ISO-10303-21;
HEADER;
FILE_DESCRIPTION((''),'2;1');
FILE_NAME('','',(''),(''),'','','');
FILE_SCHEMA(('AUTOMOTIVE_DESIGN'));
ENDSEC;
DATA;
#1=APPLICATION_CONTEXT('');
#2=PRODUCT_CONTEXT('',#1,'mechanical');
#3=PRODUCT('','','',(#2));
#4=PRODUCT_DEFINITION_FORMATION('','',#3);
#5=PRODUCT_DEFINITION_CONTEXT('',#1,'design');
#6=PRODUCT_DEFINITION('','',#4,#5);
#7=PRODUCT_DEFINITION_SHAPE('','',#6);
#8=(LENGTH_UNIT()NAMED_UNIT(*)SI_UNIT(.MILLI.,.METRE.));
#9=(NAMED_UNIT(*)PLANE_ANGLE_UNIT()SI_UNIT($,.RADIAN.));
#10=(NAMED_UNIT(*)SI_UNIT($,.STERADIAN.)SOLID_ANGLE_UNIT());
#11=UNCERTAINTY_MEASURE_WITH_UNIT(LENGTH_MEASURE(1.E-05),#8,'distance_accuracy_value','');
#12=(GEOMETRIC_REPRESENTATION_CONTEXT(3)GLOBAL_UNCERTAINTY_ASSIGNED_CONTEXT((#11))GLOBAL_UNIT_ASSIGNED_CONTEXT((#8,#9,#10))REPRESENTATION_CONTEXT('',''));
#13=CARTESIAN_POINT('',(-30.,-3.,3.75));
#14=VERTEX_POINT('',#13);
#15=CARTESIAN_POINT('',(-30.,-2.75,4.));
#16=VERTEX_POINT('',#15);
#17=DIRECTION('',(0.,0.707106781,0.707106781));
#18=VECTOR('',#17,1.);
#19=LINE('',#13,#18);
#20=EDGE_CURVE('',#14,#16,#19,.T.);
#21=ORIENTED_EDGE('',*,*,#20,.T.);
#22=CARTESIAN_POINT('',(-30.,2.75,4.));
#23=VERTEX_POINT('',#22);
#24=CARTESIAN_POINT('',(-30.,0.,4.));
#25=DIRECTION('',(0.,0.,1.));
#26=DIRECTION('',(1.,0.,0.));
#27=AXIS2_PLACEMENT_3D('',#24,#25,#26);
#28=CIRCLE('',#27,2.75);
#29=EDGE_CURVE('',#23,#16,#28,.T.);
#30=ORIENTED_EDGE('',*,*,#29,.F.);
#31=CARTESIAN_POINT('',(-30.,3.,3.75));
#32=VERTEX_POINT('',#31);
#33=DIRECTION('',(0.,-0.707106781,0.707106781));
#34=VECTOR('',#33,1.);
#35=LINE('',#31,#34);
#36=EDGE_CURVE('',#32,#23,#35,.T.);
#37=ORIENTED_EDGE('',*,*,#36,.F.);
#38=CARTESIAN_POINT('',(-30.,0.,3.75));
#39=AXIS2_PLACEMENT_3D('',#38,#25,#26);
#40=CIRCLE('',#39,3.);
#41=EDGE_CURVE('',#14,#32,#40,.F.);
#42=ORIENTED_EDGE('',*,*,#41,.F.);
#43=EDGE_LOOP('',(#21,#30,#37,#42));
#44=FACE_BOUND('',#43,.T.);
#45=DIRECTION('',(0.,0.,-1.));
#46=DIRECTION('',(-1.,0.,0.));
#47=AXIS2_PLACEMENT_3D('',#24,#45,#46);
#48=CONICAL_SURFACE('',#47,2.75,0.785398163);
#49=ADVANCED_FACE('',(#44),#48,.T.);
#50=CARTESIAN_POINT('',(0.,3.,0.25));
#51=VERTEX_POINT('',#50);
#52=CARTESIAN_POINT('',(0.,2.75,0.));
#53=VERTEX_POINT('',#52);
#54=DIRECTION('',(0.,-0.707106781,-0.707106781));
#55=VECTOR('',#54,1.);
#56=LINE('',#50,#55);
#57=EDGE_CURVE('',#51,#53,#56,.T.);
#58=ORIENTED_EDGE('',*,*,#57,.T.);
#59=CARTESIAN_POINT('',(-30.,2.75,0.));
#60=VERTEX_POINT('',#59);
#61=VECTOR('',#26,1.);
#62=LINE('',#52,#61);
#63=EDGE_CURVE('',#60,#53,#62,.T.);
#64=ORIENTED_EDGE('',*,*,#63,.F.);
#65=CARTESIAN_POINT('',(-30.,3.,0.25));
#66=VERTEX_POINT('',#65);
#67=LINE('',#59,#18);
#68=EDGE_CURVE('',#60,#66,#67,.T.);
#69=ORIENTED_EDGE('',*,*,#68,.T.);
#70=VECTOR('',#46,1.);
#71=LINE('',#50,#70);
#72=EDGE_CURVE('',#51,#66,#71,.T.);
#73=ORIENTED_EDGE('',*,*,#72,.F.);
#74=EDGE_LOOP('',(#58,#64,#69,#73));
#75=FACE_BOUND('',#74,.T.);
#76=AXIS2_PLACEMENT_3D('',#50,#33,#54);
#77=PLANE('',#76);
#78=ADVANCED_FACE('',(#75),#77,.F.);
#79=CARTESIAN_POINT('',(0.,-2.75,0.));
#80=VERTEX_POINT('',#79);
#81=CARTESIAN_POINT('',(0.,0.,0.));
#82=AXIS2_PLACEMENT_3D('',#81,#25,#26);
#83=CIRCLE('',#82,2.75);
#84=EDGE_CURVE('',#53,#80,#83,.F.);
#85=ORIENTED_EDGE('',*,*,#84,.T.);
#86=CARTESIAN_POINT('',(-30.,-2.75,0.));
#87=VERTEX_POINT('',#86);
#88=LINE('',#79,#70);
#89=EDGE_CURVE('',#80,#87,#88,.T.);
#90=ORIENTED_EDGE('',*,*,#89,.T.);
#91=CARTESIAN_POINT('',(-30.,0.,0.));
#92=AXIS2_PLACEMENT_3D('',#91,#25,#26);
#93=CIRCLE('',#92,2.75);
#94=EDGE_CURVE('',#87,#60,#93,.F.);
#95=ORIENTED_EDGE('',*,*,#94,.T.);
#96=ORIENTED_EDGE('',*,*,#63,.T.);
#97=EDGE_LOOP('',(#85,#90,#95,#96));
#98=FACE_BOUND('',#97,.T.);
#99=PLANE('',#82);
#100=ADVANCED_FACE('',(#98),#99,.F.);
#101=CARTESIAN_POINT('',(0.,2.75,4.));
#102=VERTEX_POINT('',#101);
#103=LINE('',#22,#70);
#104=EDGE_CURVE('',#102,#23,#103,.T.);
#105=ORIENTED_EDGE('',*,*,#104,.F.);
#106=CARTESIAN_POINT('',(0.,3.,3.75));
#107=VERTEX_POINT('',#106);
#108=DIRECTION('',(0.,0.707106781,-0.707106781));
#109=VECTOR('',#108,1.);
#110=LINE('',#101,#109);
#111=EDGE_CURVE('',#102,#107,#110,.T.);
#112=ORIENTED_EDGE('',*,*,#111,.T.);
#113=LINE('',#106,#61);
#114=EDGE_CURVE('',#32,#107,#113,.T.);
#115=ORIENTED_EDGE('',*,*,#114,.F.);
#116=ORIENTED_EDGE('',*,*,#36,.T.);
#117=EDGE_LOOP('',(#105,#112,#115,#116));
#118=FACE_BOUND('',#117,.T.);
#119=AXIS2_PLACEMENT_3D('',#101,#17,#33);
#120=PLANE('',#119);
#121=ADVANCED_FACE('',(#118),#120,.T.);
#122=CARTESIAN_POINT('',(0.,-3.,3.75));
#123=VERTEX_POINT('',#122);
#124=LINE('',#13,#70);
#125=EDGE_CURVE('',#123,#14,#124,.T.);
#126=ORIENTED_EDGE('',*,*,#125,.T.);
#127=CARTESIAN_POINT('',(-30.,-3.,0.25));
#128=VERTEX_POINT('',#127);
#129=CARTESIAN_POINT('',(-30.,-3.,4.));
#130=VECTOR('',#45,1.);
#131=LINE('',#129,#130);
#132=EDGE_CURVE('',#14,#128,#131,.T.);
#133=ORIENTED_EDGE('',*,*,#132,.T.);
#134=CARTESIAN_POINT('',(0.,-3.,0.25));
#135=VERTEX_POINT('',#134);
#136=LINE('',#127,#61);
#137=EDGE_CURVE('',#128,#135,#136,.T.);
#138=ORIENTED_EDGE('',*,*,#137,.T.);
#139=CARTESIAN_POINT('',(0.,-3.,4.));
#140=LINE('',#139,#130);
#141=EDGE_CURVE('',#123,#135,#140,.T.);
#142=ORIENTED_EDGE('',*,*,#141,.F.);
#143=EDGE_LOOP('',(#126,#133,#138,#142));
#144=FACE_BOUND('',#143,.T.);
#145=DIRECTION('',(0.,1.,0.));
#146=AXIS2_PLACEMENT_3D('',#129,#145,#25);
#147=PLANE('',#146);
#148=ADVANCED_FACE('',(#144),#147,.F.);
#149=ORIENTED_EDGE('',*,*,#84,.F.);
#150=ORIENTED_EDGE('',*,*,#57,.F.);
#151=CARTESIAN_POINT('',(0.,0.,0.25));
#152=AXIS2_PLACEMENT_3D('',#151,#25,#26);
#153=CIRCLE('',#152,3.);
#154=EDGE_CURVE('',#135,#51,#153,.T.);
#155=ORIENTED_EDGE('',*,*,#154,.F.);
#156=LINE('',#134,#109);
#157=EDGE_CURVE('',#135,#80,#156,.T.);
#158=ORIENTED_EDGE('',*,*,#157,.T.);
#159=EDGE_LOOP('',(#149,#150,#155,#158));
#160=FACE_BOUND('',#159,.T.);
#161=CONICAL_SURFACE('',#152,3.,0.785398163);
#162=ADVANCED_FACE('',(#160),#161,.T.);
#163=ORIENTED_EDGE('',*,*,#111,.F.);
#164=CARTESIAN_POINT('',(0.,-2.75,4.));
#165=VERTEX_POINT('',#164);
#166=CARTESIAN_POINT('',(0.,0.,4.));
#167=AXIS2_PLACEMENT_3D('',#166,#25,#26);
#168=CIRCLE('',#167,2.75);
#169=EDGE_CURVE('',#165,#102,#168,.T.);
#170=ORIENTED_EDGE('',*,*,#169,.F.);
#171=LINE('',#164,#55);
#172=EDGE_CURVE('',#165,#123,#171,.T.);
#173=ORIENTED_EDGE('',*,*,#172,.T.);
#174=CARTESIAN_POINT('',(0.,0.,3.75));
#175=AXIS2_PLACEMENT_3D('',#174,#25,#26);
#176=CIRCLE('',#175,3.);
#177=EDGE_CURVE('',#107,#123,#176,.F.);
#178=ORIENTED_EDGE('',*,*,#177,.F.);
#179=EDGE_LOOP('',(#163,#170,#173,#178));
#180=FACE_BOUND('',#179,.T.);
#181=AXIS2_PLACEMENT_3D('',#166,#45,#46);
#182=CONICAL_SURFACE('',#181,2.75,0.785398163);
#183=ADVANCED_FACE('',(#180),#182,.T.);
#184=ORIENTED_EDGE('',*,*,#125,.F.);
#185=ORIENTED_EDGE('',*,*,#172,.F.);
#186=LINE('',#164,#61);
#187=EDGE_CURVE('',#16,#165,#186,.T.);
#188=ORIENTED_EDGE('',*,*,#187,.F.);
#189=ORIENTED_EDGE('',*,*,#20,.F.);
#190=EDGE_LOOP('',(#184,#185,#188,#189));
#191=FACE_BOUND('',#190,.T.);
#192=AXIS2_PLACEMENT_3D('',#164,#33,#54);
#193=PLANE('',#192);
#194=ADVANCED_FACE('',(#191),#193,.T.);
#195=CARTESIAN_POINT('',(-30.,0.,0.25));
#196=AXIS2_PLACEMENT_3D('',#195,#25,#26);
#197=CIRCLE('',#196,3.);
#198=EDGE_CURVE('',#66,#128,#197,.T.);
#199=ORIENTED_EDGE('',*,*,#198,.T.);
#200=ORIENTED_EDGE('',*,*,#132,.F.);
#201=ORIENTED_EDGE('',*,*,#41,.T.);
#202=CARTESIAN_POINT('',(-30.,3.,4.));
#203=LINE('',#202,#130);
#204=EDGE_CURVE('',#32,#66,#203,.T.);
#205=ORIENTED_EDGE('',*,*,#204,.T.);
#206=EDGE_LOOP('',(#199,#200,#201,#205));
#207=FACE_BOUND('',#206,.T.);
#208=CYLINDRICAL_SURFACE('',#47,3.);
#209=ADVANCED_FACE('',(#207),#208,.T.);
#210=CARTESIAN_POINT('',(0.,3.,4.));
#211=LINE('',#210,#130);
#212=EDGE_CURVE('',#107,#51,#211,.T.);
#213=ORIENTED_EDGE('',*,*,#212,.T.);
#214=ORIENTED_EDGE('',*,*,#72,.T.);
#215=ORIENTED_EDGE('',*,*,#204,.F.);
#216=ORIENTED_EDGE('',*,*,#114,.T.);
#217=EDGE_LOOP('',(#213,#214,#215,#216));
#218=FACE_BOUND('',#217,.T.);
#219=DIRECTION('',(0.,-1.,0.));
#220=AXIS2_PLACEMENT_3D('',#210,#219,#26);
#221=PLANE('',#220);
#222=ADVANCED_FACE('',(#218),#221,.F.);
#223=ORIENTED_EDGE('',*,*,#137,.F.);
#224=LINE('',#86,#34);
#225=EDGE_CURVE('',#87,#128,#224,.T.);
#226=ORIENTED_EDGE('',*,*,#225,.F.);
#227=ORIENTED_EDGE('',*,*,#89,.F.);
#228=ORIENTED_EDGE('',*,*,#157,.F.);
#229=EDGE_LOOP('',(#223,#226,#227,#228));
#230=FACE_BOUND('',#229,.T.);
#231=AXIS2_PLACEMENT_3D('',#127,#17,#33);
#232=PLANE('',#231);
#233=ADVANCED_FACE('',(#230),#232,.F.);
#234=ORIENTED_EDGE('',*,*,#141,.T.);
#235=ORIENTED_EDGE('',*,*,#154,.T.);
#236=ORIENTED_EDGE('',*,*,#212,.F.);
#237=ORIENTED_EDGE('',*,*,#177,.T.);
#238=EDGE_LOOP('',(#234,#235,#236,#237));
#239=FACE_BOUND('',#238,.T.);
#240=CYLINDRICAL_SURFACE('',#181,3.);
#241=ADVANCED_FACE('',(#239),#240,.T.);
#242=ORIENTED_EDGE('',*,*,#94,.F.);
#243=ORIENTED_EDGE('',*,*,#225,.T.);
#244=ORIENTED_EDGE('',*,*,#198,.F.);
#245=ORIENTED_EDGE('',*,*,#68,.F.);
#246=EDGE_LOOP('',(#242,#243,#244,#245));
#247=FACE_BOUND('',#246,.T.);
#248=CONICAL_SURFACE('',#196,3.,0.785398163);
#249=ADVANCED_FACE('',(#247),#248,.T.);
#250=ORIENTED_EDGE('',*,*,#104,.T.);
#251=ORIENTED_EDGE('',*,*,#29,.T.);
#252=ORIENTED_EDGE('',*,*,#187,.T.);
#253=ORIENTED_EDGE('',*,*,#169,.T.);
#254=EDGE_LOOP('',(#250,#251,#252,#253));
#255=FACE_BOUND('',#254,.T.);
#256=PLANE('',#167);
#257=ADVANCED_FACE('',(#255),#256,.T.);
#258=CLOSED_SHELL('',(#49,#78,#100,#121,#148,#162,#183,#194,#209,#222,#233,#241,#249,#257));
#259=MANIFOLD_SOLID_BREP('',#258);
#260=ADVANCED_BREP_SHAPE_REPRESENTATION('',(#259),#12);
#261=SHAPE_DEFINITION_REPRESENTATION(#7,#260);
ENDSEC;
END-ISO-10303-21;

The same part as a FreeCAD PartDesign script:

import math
import FreeCAD as App
import Part
import Sketcher

V = App.Vector


def edges_at(feature, points):
    """Names of the edges that pass closest to the given points."""
    edges = feature.Shape.Edges
    near = lambda p: min(range(len(edges)), key=lambda i: edges[i].distToShape(Part.Vertex(*p))[0])
    return sorted({f"Edge{near(p) + 1}" for p in points})

doc = App.newDocument("Part")
body = doc.addObject("PartDesign::Body", "Body")

# Sketch on XY plane
sketch1 = body.newObject("Sketcher::SketchObject", "Sketch")
sketch1.AttachmentSupport = (doc.getObject("XY_Plane"), [""])
sketch1.MapMode = "FlatFace"
sketch1.addGeometry([
    Part.LineSegment(V(0, 3, 0), V(-30, 3, 0)),
    Part.ArcOfCircle(Part.Circle(V(-30, 0, 0), V(0, 0, 1), 3), math.radians(90), math.radians(270)),
    Part.LineSegment(V(-30, -3, 0), V(0, -3, 0)),
    Part.ArcOfCircle(Part.Circle(V(0, 0, 0), V(0, 0, 1), 3), math.radians(-90), math.radians(90)),
], False)
sketch1.addConstraint([
    Sketcher.Constraint("Tangent", 0, 2, 1, 1),
    Sketcher.Constraint("Tangent", 1, 2, 2, 1),
    Sketcher.Constraint("Tangent", 2, 2, 3, 1),
    Sketcher.Constraint("Tangent", 3, 2, 0, 1),
    Sketcher.Constraint("Horizontal", 0),
    Sketcher.Constraint("Horizontal", 2),
    Sketcher.Constraint("Coincident", 3, 3, -1, 1),
    Sketcher.Constraint("Radius", 1, 3.0),
    Sketcher.Constraint("DistanceX", 0, 2, 0, 1, 30.0),
])
pad1 = body.newObject("PartDesign::Pad", "Pad")
pad1.Profile = sketch1
pad1.Length = 4
doc.recompute()

chamfer = body.newObject("PartDesign::Chamfer", "Chamfer")
chamfer.Base = (pad1, edges_at(pad1, [
    (-33, 0, 4),
    (-15, -3, 4),
    (3, 0, 4),
    (-15, -3, 0),
    (-33, 0, 0),
    (-15, 3, 0),
    (3, 0, 0),
    (-15, 3, 4),
]))
chamfer.Size = 0.25

doc.recompute()
